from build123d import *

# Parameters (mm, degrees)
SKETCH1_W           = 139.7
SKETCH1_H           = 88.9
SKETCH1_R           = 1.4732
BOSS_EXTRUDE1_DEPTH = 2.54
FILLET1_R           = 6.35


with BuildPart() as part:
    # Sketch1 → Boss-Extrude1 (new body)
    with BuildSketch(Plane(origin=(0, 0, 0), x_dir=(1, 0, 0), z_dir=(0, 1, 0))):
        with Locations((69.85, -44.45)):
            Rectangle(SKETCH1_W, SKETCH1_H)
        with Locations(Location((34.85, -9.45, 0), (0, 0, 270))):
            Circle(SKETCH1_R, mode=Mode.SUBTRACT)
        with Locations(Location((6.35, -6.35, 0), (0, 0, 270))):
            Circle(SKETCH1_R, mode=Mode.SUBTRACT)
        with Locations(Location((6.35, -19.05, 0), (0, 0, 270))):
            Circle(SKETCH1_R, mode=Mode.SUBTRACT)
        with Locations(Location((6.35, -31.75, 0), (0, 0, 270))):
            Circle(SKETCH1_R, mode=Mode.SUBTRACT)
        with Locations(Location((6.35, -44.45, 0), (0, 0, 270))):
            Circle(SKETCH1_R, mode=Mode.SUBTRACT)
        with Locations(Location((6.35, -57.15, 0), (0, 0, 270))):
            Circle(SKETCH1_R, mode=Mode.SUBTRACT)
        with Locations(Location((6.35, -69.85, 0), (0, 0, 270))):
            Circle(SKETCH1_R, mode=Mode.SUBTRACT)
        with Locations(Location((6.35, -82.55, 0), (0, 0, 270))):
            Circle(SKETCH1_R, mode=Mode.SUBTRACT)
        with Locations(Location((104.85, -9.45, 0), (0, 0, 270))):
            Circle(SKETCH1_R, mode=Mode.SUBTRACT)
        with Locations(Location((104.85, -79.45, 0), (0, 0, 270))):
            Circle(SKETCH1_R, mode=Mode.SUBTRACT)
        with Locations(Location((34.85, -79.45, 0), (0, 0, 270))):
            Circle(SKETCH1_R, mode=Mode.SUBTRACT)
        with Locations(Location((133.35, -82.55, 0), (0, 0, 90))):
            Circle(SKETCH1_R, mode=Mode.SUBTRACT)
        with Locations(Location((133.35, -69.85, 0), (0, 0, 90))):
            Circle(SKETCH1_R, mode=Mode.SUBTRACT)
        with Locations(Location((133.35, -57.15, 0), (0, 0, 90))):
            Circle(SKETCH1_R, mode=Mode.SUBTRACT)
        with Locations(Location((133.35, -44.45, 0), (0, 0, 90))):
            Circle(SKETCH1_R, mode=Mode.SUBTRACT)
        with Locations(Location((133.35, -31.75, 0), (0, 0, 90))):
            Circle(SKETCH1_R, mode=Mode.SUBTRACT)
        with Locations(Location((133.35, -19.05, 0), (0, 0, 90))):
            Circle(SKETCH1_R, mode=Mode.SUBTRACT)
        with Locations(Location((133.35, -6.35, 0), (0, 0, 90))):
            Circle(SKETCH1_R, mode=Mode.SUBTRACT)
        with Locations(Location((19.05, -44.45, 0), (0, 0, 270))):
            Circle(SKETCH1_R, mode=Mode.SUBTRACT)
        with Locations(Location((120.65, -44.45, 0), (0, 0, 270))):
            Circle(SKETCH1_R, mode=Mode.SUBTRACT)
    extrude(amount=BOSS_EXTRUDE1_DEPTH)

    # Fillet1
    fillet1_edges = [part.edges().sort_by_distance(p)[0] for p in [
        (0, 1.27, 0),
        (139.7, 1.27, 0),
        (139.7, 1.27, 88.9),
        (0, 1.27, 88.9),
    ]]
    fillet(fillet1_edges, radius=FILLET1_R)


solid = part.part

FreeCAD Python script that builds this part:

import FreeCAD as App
import Part
import Sketcher
from FreeCAD import Vector
Q = App.Units.Quantity


def edges_at(feature, points):
    """Names of the edges that pass closest to the given points."""
    edges = feature.Shape.Edges
    near = lambda p: min(range(len(edges)), key=lambda i: edges[i].distToShape(Part.Vertex(*p))[0])
    return sorted({f"Edge{near(p) + 1}" for p in points})

doc = App.newDocument("Part")
body = doc.addObject("PartDesign::Body", "Body")

sketch1 = body.newObject("Sketcher::SketchObject", "Sketch")
sketch1.AttachmentSupport = (doc.getObject("XZ_Plane"), [""])
sketch1.MapMode = "FlatFace"
sketch1.addGeometry([
    Part.LineSegment(Vector(0, 0, 0), Vector(0, 88.9, 0)),
    Part.LineSegment(Vector(0, 88.9, 0), Vector(139.7, 88.9, 0)),
    Part.LineSegment(Vector(139.7, 88.9, 0), Vector(139.7, 0, 0)),
    Part.LineSegment(Vector(139.7, 0, 0), Vector(0, 0, 0)),
    Part.Circle(Vector(6.3, 82.5, 0), Vector(0, 0, 1), 1.5),
    Part.Circle(Vector(34.9, 79.5, 0), Vector(0, 0, 1), 1.5),
    Part.Circle(Vector(6.3, 69.8, 0), Vector(0, 0, 1), 1.5),
    Part.Circle(Vector(6.3, 57.1, 0), Vector(0, 0, 1), 1.5),
    Part.Circle(Vector(6.3, 44.5, 0), Vector(0, 0, 1), 1.5),
    Part.Circle(Vector(19.1, 44.5, 0), Vector(0, 0, 1), 1.5),
    Part.Circle(Vector(104.8, 79.5, 0), Vector(0, 0, 1), 1.5),
    Part.Circle(Vector(133.3, 82.5, 0), Vector(0, 0, 1), 1.5),
    Part.Circle(Vector(133.3, 69.8, 0), Vector(0, 0, 1), 1.5),
    Part.Circle(Vector(133.3, 57.1, 0), Vector(0, 0, 1), 1.5),
    Part.Circle(Vector(120.7, 44.5, 0), Vector(0, 0, 1), 1.5),
    Part.Circle(Vector(133.3, 44.5, 0), Vector(0, 0, 1), 1.5),
    Part.Circle(Vector(6.3, 31.8, 0), Vector(0, 0, 1), 1.5),
    Part.Circle(Vector(6.3, 19.1, 0), Vector(0, 0, 1), 1.5),
    Part.Circle(Vector(6.3, 6.3, 0), Vector(0, 0, 1), 1.5),
    Part.Circle(Vector(34.9, 9.4, 0), Vector(0, 0, 1), 1.5),
    Part.Circle(Vector(133.3, 31.8, 0), Vector(0, 0, 1), 1.5),
    Part.Circle(Vector(133.3, 19.1, 0), Vector(0, 0, 1), 1.5),
    Part.Circle(Vector(104.8, 9.4, 0), Vector(0, 0, 1), 1.5),
    Part.Circle(Vector(133.3, 6.3, 0), Vector(0, 0, 1), 1.5),
], False)
sketch1.addConstraint([
    Sketcher.Constraint("Coincident", 0, 2, 1, 1),
    Sketcher.Constraint("Coincident", 1, 2, 2, 1),
    Sketcher.Constraint("Coincident", 2, 2, 3, 1),
    Sketcher.Constraint("Coincident", 3, 2, 0, 1),
    Sketcher.Constraint("Vertical", 0),
    Sketcher.Constraint("Horizontal", 1),
    Sketcher.Constraint("Vertical", 2),
    Sketcher.Constraint("Horizontal", 3),
    Sketcher.Constraint("Coincident", 3, 2, -1, 1),
    Sketcher.Constraint("Equal", 4, 5),
    Sketcher.Constraint("Equal", 5, 6),
    Sketcher.Constraint("Equal", 6, 7),
    Sketcher.Constraint("Equal", 7, 8),
    Sketcher.Constraint("Equal", 8, 9),
    Sketcher.Constraint("Equal", 9, 10),
    Sketcher.Constraint("Equal", 10, 11),
    Sketcher.Constraint("Equal", 11, 12),
    Sketcher.Constraint("Equal", 12, 13),
    Sketcher.Constraint("Equal", 13, 14),
    Sketcher.Constraint("Equal", 14, 15),
    Sketcher.Constraint("Equal", 15, 16),
    Sketcher.Constraint("Equal", 16, 17),
    Sketcher.Constraint("Equal", 17, 18),
    Sketcher.Constraint("Equal", 18, 19),
    Sketcher.Constraint("Equal", 19, 20),
    Sketcher.Constraint("Equal", 20, 21),
    Sketcher.Constraint("Equal", 21, 22),
    Sketcher.Constraint("Equal", 22, 23),
    Sketcher.Constraint("Horizontal", 8, 3, 9, 3),
    Sketcher.Constraint("Horizontal", 5, 3, 10, 3),
    Sketcher.Constraint("Horizontal", 4, 3, 11, 3),
    Sketcher.Constraint("Horizontal", 6, 3, 12, 3),
    Sketcher.Constraint("Horizontal", 7, 3, 13, 3),
    Sketcher.Constraint("Horizontal", 9, 3, 14, 3),
    Sketcher.Constraint("Horizontal", 14, 3, 15, 3),
    Sketcher.Constraint("Horizontal", 16, 3, 20, 3),
    Sketcher.Constraint("Horizontal", 17, 3, 21, 3),
    Sketcher.Constraint("Horizontal", 19, 3, 22, 3),
    Sketcher.Constraint("Horizontal", 18, 3, 23, 3),
    Sketcher.Constraint("Vertical", 4, 3, 6, 3),
    Sketcher.Constraint("Vertical", 6, 3, 7, 3),
    Sketcher.Constraint("Vertical", 7, 3, 8, 3),
    Sketcher.Constraint("Vertical", 11, 3, 12, 3),
    Sketcher.Constraint("Vertical", 12, 3, 13, 3),
    Sketcher.Constraint("Vertical", 13, 3, 15, 3),
    Sketcher.Constraint("Vertical", 8, 3, 16, 3),
    Sketcher.Constraint("Vertical", 16, 3, 17, 3),
    Sketcher.Constraint("Vertical", 17, 3, 18, 3),
    Sketcher.Constraint("Vertical", 5, 3, 19, 3),
    Sketcher.Constraint("Vertical", 15, 3, 20, 3),
    Sketcher.Constraint("Vertical", 20, 3, 21, 3),
    Sketcher.Constraint("Vertical", 10, 3, 22, 3),
    Sketcher.Constraint("Vertical", 21, 3, 23, 3),
    Sketcher.Constraint("Diameter", 4, Q("0.116 in")),
    Sketcher.Constraint("DistanceX", 1, 1, 1, 2, Q("5.5 in")),
    Sketcher.Constraint("DistanceY", 0, 1, 0, 2, Q("3.5 in")),
    Sketcher.Constraint("DistanceY", 7, 3, 4, 3, Q("1 in")),
    Sketcher.Constraint("DistanceY", 8, 3, 6, 3, Q("1 in")),
    Sketcher.Constraint("DistanceX", 4, 3, 11, 3, Q("5 in")),
    Sketcher.Constraint("DistanceY", 16, 3, 7, 3, Q("1 in")),
    Sketcher.Constraint("DistanceY", 17, 3, 8, 3, Q("1 in")),
    Sketcher.Constraint("DistanceY", 18, 3, 16, 3, Q("1 in")),
    Sketcher.Constraint("DistanceY", 6, 3, 4, 3, Q("0.5 in")),
    Sketcher.Constraint("DistanceX", 8, 3, 9, 3, Q("0.5 in")),
    Sketcher.Constraint("DistanceX", 14, 3, 13, 3, Q("0.5 in")),
    Sketcher.Constraint("DistanceX", -1, 1, 4, 3, Q("0.25 in")),
    Sketcher.Constraint("DistanceY", -1, 1, 4, 3, Q("3.25 in")),
    Sketcher.Constraint("DistanceX", -1, 1, 5, 3, 34.85),
    Sketcher.Constraint("DistanceY", -1, 1, 5, 3, 79.45),
    Sketcher.Constraint("DistanceX", -1, 1, 10, 3, 104.85),
    Sketcher.Constraint("DistanceY", -1, 1, 19, 3, 9.45),
])
pad1 = body.newObject("PartDesign::Pad", "Pad")
pad1.Profile = sketch1
pad1.Length = Q("0.1 in")
pad1.Reversed = True
doc.recompute()

fillet = body.newObject("PartDesign::Fillet", "Fillet")
fillet.Base = (pad1, edges_at(pad1, [
    (0, 1.27, 0),
    (139.7, 1.27, 0),
    (139.7, 1.27, 88.9),
    (0, 1.27, 88.9),
]))
fillet.Radius = Q("0.25 in")

doc.recompute()
